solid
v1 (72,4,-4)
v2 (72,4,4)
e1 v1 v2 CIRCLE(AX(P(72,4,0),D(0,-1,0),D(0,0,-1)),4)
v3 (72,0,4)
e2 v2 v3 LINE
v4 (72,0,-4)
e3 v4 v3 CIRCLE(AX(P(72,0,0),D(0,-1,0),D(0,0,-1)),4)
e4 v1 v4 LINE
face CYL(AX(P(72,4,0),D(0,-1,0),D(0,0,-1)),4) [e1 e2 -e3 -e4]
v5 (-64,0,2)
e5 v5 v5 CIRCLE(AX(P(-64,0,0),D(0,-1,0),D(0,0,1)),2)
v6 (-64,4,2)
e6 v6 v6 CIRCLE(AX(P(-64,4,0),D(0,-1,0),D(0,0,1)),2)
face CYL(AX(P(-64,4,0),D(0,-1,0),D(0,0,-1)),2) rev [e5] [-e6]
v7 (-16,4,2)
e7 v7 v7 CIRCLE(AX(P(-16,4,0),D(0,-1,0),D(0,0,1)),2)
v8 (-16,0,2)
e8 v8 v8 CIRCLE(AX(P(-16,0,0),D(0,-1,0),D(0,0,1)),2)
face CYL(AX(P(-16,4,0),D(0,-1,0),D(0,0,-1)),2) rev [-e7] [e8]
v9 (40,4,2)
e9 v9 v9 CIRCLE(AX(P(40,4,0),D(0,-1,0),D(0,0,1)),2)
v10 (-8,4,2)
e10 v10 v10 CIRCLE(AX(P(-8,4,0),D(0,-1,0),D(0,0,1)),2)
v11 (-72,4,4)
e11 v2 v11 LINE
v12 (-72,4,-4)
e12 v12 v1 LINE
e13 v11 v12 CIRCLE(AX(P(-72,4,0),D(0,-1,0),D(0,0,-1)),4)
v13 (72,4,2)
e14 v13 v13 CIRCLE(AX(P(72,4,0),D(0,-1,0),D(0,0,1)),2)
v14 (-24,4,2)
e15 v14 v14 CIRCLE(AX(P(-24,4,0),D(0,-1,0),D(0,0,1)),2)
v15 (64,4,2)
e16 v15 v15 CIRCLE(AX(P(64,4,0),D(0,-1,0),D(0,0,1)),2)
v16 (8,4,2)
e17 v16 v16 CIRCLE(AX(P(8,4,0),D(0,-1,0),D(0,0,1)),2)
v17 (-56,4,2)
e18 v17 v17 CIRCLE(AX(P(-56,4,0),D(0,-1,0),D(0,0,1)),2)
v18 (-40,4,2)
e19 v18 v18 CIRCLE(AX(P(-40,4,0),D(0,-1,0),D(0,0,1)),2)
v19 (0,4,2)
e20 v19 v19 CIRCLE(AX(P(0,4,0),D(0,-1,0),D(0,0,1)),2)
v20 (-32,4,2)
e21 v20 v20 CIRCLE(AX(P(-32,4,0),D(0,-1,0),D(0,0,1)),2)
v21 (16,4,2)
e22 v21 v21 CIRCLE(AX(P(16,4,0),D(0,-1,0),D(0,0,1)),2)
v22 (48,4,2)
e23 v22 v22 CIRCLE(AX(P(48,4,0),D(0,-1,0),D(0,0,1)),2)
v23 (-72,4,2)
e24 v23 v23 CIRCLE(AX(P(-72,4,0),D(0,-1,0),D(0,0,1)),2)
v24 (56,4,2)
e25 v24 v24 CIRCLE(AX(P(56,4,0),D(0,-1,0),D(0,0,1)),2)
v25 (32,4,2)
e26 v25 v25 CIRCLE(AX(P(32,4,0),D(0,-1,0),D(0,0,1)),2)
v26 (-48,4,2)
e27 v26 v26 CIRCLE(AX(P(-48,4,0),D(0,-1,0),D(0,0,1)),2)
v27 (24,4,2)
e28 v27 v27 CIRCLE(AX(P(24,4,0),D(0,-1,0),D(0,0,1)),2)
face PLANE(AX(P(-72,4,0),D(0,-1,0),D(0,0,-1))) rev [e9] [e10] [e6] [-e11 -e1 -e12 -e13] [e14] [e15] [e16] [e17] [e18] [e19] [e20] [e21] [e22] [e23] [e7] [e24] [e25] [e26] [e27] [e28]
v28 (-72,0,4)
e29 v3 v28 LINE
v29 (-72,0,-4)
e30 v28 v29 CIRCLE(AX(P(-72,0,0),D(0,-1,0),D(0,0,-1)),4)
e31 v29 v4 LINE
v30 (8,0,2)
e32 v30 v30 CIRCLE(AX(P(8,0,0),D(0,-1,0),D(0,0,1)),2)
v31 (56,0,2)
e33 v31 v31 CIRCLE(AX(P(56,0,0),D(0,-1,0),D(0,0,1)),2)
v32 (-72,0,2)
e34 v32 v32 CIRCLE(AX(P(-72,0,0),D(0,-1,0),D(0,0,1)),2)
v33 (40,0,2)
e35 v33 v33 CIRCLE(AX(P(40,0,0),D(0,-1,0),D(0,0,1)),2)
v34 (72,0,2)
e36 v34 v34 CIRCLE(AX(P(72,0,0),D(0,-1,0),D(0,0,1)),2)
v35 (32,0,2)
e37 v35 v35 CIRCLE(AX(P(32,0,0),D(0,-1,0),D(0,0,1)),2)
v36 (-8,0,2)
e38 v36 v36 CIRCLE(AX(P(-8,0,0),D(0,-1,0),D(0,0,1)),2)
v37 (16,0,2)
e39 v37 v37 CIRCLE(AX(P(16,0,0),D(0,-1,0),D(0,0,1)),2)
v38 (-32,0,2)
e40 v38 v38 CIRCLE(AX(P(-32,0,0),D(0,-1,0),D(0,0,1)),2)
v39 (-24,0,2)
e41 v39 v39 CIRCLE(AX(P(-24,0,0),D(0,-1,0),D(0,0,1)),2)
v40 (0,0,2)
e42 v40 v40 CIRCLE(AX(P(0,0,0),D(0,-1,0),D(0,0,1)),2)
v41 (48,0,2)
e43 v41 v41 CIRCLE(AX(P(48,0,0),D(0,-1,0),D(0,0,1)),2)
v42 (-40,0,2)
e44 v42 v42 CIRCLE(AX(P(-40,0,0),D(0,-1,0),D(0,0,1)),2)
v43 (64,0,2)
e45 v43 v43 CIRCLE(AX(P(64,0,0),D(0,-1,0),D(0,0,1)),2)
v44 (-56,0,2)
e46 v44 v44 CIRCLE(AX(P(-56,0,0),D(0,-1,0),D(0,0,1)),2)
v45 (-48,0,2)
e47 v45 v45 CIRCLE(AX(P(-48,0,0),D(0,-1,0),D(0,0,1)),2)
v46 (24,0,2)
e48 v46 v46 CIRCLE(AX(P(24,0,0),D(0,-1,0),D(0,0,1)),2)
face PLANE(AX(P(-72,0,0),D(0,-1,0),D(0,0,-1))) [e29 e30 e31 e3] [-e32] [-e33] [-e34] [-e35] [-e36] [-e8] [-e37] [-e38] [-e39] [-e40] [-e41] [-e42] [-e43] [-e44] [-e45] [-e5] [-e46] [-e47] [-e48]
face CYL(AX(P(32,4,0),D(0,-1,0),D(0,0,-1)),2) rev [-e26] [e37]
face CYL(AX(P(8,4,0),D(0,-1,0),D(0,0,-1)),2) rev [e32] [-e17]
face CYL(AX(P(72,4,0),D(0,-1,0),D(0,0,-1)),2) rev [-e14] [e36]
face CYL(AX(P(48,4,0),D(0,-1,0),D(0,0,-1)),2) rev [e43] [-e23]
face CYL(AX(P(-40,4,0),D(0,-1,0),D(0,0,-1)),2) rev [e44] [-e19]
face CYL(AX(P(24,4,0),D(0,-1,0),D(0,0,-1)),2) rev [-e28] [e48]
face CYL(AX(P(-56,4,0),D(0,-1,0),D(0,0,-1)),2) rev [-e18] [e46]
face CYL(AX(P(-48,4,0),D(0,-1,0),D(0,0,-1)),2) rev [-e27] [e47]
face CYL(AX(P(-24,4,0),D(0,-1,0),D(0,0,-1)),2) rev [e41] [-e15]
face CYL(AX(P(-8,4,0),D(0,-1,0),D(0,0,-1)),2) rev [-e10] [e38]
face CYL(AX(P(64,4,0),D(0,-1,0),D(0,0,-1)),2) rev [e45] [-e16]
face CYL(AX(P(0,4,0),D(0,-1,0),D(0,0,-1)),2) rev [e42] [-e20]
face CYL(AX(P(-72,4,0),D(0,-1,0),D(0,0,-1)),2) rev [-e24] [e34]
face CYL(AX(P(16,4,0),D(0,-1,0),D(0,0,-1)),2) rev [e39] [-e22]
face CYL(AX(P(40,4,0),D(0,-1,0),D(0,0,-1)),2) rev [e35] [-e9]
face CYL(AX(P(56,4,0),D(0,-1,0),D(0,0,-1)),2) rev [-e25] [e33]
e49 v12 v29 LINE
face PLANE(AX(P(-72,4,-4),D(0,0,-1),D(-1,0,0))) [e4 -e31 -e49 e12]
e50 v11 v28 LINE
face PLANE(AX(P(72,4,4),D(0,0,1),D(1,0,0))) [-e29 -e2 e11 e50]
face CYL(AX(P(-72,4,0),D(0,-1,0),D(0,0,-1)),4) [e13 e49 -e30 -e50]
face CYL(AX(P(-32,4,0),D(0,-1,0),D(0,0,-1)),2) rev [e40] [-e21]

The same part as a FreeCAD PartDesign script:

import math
import FreeCAD as App
import Part
import Sketcher
from FreeCAD import Vector

doc = App.newDocument("Part")
body = doc.addObject("PartDesign::Body", "Body")

# Sketch on XZ plane
sketch1 = body.newObject("Sketcher::SketchObject", "Sketch")
sketch1.AttachmentSupport = (doc.getObject("XZ_Plane"), [""])
sketch1.MapMode = "FlatFace"
sketch1.addGeometry(Part.LineSegment(Vector(-72, -4, 0), Vector(72, -4, 0)), False)
sketch1.addGeometry(Part.ArcOfCircle(Part.Circle(Vector(72, 0, 0), Vector(0, 0, 1), 4), math.radians(-90), math.radians(90)), False)
sketch1.addGeometry(Part.LineSegment(Vector(72, 4, 0), Vector(-72, 4, 0)), False)
sketch1.addGeometry(Part.ArcOfCircle(Part.Circle(Vector(-72, 0, 0), Vector(0, 0, 1), 4), math.radians(90), math.radians(270)), False)
sketch1.addGeometry(Part.Circle(Vector(-72, 0, 0), Vector(0, 0, 1), 2), False)
sketch1.addGeometry(Part.Circle(Vector(-64, 0, 0), Vector(0, 0, 1), 2), False)
sketch1.addGeometry(Part.Circle(Vector(-56, 0, 0), Vector(0, 0, 1), 2), False)
sketch1.addGeometry(Part.Circle(Vector(-48, 0, 0), Vector(0, 0, 1), 2), False)
sketch1.addGeometry(Part.Circle(Vector(-40, 0, 0), Vector(0, 0, 1), 2), False)
sketch1.addGeometry(Part.Circle(Vector(-32, 0, 0), Vector(0, 0, 1), 2), False)
sketch1.addGeometry(Part.Circle(Vector(-24, 0, 0), Vector(0, 0, 1), 2), False)
sketch1.addGeometry(Part.Circle(Vector(-16, 0, 0), Vector(0, 0, 1), 2), False)
sketch1.addGeometry(Part.Circle(Vector(-8, 0, 0), Vector(0, 0, 1), 2), False)
sketch1.addGeometry(Part.Circle(Vector(0, 0, 0), Vector(0, 0, 1), 2), False)
sketch1.addGeometry(Part.Circle(Vector(8, 0, 0), Vector(0, 0, 1), 2), False)
sketch1.addGeometry(Part.Circle(Vector(16, 0, 0), Vector(0, 0, 1), 2), False)
sketch1.addGeometry(Part.Circle(Vector(24, 0, 0), Vector(0, 0, 1), 2), False)
sketch1.addGeometry(Part.Circle(Vector(32, 0, 0), Vector(0, 0, 1), 2), False)
sketch1.addGeometry(Part.Circle(Vector(40, 0, 0), Vector(0, 0, 1), 2), False)
sketch1.addGeometry(Part.Circle(Vector(48, 0, 0), Vector(0, 0, 1), 2), False)
sketch1.addGeometry(Part.Circle(Vector(56, 0, 0), Vector(0, 0, 1), 2), False)
sketch1.addGeometry(Part.Circle(Vector(64, 0, 0), Vector(0, 0, 1), 2), False)
sketch1.addGeometry(Part.Circle(Vector(72, 0, 0), Vector(0, 0, 1), 2), False)
sketch1.addConstraint(Sketcher.Constraint("Tangent", 0, 2, 1, 1))
sketch1.addConstraint(Sketcher.Constraint("Tangent", 1, 2, 2, 1))
sketch1.addConstraint(Sketcher.Constraint("Tangent", 2, 2, 3, 1))
sketch1.addConstraint(Sketcher.Constraint("Tangent", 3, 2, 0, 1))
sketch1.addConstraint(Sketcher.Constraint("Horizontal", 0))
sketch1.addConstraint(Sketcher.Constraint("Horizontal", 2))
sketch1.addConstraint(Sketcher.Constraint("Coincident", 13, 3, -1, 1))
sketch1.addConstraint(Sketcher.Constraint("Coincident", 4, 3, 3, 3))
sketch1.addConstraint(Sketcher.Constraint("Coincident", 22, 3, 1, 3))
sketch1.addConstraint(Sketcher.Constraint("Equal", 4, 5))
sketch1.addConstraint(Sketcher.Constraint("Equal", 5, 6))
sketch1.addConstraint(Sketcher.Constraint("Equal", 6, 7))
sketch1.addConstraint(Sketcher.Constraint("Equal", 7, 8))
sketch1.addConstraint(Sketcher.Constraint("Equal", 8, 9))
sketch1.addConstraint(Sketcher.Constraint("Equal", 9, 10))
sketch1.addConstraint(Sketcher.Constraint("Equal", 10, 11))
sketch1.addConstraint(Sketcher.Constraint("Equal", 11, 12))
sketch1.addConstraint(Sketcher.Constraint("Equal", 12, 13))
sketch1.addConstraint(Sketcher.Constraint("Equal", 13, 14))
sketch1.addConstraint(Sketcher.Constraint("Equal", 14, 15))
sketch1.addConstraint(Sketcher.Constraint("Equal", 15, 16))
sketch1.addConstraint(Sketcher.Constraint("Equal", 16, 17))
sketch1.addConstraint(Sketcher.Constraint("Equal", 17, 18))
sketch1.addConstraint(Sketcher.Constraint("Equal", 18, 19))
sketch1.addConstraint(Sketcher.Constraint("Equal", 19, 20))
sketch1.addConstraint(Sketcher.Constraint("Equal", 20, 21))
sketch1.addConstraint(Sketcher.Constraint("Equal", 21, 22))
sketch1.addConstraint(Sketcher.Constraint("Symmetric", 1, 3, 3, 3, -1, 1))
sketch1.addConstraint(Sketcher.Constraint("Symmetric", 12, 3, 14, 3, -1, 1))
sketch1.addConstraint(Sketcher.Constraint("Symmetric", 11, 3, 15, 3, -1, 1))
sketch1.addConstraint(Sketcher.Constraint("Symmetric", 10, 3, 16, 3, -1, 1))
sketch1.addConstraint(Sketcher.Constraint("Symmetric", 9, 3, 17, 3, -1, 1))
sketch1.addConstraint(Sketcher.Constraint("Symmetric", 8, 3, 18, 3, -1, 1))
sketch1.addConstraint(Sketcher.Constraint("Symmetric", 7, 3, 19, 3, -1, 1))
sketch1.addConstraint(Sketcher.Constraint("Symmetric", 6, 3, 20, 3, -1, 1))
sketch1.addConstraint(Sketcher.Constraint("Symmetric", 5, 3, 21, 3, -1, 1))
sketch1.addConstraint(Sketcher.Constraint("PointOnObject", 5, 3, -1))
sketch1.addConstraint(Sketcher.Constraint("PointOnObject", 6, 3, -1))
sketch1.addConstraint(Sketcher.Constraint("PointOnObject", 7, 3, -1))
sketch1.addConstraint(Sketcher.Constraint("PointOnObject", 8, 3, -1))
sketch1.addConstraint(Sketcher.Constraint("PointOnObject", 9, 3, -1))
sketch1.addConstraint(Sketcher.Constraint("PointOnObject", 10, 3, -1))
sketch1.addConstraint(Sketcher.Constraint("PointOnObject", 11, 3, -1))
sketch1.addConstraint(Sketcher.Constraint("PointOnObject", 12, 3, -1))
sketch1.addConstraint(Sketcher.Constraint("Diameter", 4, 4.0))
sketch1.addConstraint(Sketcher.Constraint("Radius", 1, 4.0))
sketch1.addConstraint(Sketcher.Constraint("DistanceX", 0, 1, 0, 2, 144.0))
sketch1.addConstraint(Sketcher.Constraint("DistanceX", 5, 3, -1, 1, 64.0))
sketch1.addConstraint(Sketcher.Constraint("DistanceX", 6, 3, -1, 1, 56.0))
sketch1.addConstraint(Sketcher.Constraint("DistanceX", 7, 3, -1, 1, 48.0))
sketch1.addConstraint(Sketcher.Constraint("DistanceX", 8, 3, -1, 1, 40.0))
sketch1.addConstraint(Sketcher.Constraint("DistanceX", 9, 3, -1, 1, 32.0))
sketch1.addConstraint(Sketcher.Constraint("DistanceX", 10, 3, -1, 1, 24.0))
sketch1.addConstraint(Sketcher.Constraint("DistanceX", 11, 3, -1, 1, 16.0))
sketch1.addConstraint(Sketcher.Constraint("DistanceX", 12, 3, -1, 1, 8.0))
pad1 = body.newObject("PartDesign::Pad", "Pad")
pad1.Profile = sketch1
pad1.Length = 4
pad1.Reversed = True

doc.recompute()
